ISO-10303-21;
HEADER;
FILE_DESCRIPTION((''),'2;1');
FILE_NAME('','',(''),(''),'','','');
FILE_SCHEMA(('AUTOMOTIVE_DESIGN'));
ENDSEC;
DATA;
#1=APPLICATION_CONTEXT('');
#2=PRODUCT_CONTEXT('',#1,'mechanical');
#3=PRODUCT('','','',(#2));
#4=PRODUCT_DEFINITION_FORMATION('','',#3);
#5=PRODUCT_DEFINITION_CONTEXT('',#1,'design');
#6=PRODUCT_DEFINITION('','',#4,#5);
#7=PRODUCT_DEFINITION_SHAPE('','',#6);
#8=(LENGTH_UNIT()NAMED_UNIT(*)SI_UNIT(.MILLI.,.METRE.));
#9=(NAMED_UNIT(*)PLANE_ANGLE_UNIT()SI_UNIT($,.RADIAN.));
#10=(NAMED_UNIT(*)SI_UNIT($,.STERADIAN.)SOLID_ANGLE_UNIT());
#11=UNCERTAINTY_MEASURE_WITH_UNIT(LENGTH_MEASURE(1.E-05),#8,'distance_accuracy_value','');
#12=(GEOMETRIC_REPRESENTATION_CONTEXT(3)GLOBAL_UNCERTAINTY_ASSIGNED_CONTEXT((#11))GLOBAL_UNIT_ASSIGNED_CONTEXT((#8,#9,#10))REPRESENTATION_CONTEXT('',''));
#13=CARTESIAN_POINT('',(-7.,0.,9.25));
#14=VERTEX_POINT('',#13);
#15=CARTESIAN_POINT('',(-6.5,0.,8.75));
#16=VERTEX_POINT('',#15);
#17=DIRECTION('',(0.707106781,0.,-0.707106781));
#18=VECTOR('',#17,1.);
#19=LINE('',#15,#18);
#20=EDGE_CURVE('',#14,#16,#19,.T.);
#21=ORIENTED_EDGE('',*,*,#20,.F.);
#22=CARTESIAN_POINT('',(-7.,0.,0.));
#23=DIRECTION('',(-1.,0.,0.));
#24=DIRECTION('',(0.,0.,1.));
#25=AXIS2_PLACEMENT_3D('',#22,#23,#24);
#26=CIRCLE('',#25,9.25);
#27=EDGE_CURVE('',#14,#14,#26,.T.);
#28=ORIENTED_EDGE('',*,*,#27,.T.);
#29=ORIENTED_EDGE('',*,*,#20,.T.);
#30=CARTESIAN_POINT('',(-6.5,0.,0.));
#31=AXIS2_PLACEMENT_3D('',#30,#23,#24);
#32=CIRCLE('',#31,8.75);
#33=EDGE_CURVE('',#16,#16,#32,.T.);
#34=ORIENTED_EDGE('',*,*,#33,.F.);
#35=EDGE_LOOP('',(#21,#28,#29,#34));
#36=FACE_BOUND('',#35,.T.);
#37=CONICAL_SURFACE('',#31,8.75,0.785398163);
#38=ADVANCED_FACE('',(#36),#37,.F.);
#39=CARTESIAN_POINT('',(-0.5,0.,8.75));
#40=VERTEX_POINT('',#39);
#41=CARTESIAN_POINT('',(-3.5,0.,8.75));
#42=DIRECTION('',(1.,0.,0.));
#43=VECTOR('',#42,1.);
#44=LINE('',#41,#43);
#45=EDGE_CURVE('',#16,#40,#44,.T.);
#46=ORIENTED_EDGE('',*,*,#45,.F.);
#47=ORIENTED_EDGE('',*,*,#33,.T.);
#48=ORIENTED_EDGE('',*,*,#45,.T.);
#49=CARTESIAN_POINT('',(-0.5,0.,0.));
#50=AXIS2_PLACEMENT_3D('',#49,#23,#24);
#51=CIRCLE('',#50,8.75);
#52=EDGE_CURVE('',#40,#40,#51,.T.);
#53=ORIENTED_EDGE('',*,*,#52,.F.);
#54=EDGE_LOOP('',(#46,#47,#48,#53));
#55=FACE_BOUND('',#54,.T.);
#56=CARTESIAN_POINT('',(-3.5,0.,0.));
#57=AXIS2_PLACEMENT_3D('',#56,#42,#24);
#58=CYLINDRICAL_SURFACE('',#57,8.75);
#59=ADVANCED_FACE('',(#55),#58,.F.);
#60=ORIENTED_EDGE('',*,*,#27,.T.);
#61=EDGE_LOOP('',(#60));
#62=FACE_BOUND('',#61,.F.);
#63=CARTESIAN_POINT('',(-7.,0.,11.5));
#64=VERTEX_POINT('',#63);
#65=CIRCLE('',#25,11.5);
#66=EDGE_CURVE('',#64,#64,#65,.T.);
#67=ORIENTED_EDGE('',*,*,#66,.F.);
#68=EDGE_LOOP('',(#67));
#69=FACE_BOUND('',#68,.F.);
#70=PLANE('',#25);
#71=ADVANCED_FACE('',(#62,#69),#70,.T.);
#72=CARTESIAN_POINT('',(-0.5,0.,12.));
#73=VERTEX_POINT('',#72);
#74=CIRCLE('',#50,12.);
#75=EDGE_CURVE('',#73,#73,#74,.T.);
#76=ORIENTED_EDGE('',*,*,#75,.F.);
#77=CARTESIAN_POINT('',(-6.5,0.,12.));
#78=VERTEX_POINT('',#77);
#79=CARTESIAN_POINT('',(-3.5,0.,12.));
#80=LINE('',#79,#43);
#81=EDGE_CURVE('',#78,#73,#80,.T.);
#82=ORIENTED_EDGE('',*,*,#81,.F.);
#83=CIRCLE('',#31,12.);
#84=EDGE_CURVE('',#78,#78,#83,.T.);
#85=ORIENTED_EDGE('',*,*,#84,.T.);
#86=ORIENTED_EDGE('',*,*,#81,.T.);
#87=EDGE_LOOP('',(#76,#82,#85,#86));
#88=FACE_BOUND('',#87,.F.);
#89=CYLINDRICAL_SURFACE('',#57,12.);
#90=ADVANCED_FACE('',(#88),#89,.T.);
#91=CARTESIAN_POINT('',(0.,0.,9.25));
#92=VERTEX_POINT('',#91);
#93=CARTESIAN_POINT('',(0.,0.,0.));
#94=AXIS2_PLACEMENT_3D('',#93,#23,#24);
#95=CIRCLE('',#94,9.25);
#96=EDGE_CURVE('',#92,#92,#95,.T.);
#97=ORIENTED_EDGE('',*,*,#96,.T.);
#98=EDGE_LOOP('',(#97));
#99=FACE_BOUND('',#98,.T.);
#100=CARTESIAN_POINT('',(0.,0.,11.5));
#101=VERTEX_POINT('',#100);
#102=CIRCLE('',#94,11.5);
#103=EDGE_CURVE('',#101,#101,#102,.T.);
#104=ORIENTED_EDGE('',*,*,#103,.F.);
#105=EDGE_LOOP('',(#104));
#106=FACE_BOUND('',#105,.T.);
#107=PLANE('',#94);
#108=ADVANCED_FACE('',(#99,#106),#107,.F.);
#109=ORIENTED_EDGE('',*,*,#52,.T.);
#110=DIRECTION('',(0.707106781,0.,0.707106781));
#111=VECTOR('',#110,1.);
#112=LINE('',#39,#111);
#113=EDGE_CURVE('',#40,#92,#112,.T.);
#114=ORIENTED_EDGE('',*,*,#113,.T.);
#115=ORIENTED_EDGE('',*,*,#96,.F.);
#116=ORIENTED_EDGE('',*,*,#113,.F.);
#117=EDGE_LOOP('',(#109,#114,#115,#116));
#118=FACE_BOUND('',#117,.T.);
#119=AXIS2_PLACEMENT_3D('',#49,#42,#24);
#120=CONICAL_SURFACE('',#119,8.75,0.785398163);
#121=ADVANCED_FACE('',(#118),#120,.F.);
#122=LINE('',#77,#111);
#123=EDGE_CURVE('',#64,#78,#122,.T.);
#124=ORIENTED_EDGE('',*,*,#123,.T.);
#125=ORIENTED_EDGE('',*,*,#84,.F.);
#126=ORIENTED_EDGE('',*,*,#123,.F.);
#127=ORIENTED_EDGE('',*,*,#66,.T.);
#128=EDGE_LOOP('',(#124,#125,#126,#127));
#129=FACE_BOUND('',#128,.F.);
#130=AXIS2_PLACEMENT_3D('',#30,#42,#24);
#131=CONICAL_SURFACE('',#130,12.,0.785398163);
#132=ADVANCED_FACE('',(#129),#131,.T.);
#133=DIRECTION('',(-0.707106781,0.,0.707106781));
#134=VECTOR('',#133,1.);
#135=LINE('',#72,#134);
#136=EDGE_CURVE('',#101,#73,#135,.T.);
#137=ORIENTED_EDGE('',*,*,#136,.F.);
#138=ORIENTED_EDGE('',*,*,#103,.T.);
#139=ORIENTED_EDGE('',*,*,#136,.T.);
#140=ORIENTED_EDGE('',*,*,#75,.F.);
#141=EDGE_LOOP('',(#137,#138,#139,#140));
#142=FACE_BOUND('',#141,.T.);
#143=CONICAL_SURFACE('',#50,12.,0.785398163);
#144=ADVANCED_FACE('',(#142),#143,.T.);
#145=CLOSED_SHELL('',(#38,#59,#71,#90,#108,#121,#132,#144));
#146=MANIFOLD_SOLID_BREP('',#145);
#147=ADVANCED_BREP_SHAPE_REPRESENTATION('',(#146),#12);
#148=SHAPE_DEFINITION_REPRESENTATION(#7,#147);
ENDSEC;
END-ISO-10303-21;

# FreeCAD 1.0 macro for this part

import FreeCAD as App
import Part
import Sketcher

V = App.Vector
Q = App.Units.Quantity


def edges_at(feature, points):
    """Names of the edges that pass closest to the given points."""
    edges = feature.Shape.Edges
    near = lambda p: min(range(len(edges)), key=lambda i: edges[i].distToShape(Part.Vertex(*p))[0])
    return sorted({f"Edge{near(p) + 1}" for p in points})

doc = App.newDocument("Part")
body = doc.addObject("PartDesign::Body", "Body")

# Sketch on XZ plane
sketch1 = doc.addObject("Sketcher::SketchObject", "Sketch")
body.addObject(sketch1)
sketch1.AttachmentSupport = (doc.XZ_Plane, [""])
sketch1.MapMode = "FlatFace"
sketch1.addGeometry(Part.LineSegment(V(-7, 12, 0), V(-7, 8.8, 0)), False)
sketch1.addGeometry(Part.LineSegment(V(-7, 8.8, 0), V(0, 8.8, 0)), False)
sketch1.addGeometry(Part.LineSegment(V(0, 8.8, 0), V(0, 12, 0)), False)
sketch1.addGeometry(Part.LineSegment(V(0, 12, 0), V(-7, 12, 0)), False)
sketch1.addConstraint(Sketcher.Constraint("Coincident", 0, 2, 1, 1))
sketch1.addConstraint(Sketcher.Constraint("Coincident", 1, 2, 2, 1))
sketch1.addConstraint(Sketcher.Constraint("Coincident", 2, 2, 3, 1))
sketch1.addConstraint(Sketcher.Constraint("Coincident", 3, 2, 0, 1))
sketch1.addConstraint(Sketcher.Constraint("Vertical", 0))
sketch1.addConstraint(Sketcher.Constraint("Horizontal", 1))
sketch1.addConstraint(Sketcher.Constraint("Vertical", 2))
sketch1.addConstraint(Sketcher.Constraint("Horizontal", 3))
sketch1.addConstraint(Sketcher.Constraint("PointOnObject", 1, 2, -2))
sketch1.addConstraint(Sketcher.Constraint("DistanceX", 1, 1, 1, 2, Q("7 mm")))
sketch1.addConstraint(Sketcher.Constraint("DistanceY", -1, 1, 2, 2, Q("12 mm")))
sketch1.addConstraint(Sketcher.Constraint("DistanceY", 0, 2, 0, 1, Q("3.25 mm")))
revolution = doc.addObject("PartDesign::Revolution", "Revolution")
body.addObject(revolution)
revolution.Profile = sketch1
revolution.ReferenceAxis = (sketch1, ["H_Axis"])
revolution.Angle = 360
doc.recompute()

chamfer = doc.addObject("PartDesign::Chamfer", "Chamfer")
body.addObject(chamfer)
chamfer.Base = (revolution, edges_at(revolution, [
    (0, 0, -12),
    (0, 0, -8.75),
    (-7, 0, -12),
    (-7, 0, -8.75),
]))
chamfer.Size = 0.5

doc.recompute()
